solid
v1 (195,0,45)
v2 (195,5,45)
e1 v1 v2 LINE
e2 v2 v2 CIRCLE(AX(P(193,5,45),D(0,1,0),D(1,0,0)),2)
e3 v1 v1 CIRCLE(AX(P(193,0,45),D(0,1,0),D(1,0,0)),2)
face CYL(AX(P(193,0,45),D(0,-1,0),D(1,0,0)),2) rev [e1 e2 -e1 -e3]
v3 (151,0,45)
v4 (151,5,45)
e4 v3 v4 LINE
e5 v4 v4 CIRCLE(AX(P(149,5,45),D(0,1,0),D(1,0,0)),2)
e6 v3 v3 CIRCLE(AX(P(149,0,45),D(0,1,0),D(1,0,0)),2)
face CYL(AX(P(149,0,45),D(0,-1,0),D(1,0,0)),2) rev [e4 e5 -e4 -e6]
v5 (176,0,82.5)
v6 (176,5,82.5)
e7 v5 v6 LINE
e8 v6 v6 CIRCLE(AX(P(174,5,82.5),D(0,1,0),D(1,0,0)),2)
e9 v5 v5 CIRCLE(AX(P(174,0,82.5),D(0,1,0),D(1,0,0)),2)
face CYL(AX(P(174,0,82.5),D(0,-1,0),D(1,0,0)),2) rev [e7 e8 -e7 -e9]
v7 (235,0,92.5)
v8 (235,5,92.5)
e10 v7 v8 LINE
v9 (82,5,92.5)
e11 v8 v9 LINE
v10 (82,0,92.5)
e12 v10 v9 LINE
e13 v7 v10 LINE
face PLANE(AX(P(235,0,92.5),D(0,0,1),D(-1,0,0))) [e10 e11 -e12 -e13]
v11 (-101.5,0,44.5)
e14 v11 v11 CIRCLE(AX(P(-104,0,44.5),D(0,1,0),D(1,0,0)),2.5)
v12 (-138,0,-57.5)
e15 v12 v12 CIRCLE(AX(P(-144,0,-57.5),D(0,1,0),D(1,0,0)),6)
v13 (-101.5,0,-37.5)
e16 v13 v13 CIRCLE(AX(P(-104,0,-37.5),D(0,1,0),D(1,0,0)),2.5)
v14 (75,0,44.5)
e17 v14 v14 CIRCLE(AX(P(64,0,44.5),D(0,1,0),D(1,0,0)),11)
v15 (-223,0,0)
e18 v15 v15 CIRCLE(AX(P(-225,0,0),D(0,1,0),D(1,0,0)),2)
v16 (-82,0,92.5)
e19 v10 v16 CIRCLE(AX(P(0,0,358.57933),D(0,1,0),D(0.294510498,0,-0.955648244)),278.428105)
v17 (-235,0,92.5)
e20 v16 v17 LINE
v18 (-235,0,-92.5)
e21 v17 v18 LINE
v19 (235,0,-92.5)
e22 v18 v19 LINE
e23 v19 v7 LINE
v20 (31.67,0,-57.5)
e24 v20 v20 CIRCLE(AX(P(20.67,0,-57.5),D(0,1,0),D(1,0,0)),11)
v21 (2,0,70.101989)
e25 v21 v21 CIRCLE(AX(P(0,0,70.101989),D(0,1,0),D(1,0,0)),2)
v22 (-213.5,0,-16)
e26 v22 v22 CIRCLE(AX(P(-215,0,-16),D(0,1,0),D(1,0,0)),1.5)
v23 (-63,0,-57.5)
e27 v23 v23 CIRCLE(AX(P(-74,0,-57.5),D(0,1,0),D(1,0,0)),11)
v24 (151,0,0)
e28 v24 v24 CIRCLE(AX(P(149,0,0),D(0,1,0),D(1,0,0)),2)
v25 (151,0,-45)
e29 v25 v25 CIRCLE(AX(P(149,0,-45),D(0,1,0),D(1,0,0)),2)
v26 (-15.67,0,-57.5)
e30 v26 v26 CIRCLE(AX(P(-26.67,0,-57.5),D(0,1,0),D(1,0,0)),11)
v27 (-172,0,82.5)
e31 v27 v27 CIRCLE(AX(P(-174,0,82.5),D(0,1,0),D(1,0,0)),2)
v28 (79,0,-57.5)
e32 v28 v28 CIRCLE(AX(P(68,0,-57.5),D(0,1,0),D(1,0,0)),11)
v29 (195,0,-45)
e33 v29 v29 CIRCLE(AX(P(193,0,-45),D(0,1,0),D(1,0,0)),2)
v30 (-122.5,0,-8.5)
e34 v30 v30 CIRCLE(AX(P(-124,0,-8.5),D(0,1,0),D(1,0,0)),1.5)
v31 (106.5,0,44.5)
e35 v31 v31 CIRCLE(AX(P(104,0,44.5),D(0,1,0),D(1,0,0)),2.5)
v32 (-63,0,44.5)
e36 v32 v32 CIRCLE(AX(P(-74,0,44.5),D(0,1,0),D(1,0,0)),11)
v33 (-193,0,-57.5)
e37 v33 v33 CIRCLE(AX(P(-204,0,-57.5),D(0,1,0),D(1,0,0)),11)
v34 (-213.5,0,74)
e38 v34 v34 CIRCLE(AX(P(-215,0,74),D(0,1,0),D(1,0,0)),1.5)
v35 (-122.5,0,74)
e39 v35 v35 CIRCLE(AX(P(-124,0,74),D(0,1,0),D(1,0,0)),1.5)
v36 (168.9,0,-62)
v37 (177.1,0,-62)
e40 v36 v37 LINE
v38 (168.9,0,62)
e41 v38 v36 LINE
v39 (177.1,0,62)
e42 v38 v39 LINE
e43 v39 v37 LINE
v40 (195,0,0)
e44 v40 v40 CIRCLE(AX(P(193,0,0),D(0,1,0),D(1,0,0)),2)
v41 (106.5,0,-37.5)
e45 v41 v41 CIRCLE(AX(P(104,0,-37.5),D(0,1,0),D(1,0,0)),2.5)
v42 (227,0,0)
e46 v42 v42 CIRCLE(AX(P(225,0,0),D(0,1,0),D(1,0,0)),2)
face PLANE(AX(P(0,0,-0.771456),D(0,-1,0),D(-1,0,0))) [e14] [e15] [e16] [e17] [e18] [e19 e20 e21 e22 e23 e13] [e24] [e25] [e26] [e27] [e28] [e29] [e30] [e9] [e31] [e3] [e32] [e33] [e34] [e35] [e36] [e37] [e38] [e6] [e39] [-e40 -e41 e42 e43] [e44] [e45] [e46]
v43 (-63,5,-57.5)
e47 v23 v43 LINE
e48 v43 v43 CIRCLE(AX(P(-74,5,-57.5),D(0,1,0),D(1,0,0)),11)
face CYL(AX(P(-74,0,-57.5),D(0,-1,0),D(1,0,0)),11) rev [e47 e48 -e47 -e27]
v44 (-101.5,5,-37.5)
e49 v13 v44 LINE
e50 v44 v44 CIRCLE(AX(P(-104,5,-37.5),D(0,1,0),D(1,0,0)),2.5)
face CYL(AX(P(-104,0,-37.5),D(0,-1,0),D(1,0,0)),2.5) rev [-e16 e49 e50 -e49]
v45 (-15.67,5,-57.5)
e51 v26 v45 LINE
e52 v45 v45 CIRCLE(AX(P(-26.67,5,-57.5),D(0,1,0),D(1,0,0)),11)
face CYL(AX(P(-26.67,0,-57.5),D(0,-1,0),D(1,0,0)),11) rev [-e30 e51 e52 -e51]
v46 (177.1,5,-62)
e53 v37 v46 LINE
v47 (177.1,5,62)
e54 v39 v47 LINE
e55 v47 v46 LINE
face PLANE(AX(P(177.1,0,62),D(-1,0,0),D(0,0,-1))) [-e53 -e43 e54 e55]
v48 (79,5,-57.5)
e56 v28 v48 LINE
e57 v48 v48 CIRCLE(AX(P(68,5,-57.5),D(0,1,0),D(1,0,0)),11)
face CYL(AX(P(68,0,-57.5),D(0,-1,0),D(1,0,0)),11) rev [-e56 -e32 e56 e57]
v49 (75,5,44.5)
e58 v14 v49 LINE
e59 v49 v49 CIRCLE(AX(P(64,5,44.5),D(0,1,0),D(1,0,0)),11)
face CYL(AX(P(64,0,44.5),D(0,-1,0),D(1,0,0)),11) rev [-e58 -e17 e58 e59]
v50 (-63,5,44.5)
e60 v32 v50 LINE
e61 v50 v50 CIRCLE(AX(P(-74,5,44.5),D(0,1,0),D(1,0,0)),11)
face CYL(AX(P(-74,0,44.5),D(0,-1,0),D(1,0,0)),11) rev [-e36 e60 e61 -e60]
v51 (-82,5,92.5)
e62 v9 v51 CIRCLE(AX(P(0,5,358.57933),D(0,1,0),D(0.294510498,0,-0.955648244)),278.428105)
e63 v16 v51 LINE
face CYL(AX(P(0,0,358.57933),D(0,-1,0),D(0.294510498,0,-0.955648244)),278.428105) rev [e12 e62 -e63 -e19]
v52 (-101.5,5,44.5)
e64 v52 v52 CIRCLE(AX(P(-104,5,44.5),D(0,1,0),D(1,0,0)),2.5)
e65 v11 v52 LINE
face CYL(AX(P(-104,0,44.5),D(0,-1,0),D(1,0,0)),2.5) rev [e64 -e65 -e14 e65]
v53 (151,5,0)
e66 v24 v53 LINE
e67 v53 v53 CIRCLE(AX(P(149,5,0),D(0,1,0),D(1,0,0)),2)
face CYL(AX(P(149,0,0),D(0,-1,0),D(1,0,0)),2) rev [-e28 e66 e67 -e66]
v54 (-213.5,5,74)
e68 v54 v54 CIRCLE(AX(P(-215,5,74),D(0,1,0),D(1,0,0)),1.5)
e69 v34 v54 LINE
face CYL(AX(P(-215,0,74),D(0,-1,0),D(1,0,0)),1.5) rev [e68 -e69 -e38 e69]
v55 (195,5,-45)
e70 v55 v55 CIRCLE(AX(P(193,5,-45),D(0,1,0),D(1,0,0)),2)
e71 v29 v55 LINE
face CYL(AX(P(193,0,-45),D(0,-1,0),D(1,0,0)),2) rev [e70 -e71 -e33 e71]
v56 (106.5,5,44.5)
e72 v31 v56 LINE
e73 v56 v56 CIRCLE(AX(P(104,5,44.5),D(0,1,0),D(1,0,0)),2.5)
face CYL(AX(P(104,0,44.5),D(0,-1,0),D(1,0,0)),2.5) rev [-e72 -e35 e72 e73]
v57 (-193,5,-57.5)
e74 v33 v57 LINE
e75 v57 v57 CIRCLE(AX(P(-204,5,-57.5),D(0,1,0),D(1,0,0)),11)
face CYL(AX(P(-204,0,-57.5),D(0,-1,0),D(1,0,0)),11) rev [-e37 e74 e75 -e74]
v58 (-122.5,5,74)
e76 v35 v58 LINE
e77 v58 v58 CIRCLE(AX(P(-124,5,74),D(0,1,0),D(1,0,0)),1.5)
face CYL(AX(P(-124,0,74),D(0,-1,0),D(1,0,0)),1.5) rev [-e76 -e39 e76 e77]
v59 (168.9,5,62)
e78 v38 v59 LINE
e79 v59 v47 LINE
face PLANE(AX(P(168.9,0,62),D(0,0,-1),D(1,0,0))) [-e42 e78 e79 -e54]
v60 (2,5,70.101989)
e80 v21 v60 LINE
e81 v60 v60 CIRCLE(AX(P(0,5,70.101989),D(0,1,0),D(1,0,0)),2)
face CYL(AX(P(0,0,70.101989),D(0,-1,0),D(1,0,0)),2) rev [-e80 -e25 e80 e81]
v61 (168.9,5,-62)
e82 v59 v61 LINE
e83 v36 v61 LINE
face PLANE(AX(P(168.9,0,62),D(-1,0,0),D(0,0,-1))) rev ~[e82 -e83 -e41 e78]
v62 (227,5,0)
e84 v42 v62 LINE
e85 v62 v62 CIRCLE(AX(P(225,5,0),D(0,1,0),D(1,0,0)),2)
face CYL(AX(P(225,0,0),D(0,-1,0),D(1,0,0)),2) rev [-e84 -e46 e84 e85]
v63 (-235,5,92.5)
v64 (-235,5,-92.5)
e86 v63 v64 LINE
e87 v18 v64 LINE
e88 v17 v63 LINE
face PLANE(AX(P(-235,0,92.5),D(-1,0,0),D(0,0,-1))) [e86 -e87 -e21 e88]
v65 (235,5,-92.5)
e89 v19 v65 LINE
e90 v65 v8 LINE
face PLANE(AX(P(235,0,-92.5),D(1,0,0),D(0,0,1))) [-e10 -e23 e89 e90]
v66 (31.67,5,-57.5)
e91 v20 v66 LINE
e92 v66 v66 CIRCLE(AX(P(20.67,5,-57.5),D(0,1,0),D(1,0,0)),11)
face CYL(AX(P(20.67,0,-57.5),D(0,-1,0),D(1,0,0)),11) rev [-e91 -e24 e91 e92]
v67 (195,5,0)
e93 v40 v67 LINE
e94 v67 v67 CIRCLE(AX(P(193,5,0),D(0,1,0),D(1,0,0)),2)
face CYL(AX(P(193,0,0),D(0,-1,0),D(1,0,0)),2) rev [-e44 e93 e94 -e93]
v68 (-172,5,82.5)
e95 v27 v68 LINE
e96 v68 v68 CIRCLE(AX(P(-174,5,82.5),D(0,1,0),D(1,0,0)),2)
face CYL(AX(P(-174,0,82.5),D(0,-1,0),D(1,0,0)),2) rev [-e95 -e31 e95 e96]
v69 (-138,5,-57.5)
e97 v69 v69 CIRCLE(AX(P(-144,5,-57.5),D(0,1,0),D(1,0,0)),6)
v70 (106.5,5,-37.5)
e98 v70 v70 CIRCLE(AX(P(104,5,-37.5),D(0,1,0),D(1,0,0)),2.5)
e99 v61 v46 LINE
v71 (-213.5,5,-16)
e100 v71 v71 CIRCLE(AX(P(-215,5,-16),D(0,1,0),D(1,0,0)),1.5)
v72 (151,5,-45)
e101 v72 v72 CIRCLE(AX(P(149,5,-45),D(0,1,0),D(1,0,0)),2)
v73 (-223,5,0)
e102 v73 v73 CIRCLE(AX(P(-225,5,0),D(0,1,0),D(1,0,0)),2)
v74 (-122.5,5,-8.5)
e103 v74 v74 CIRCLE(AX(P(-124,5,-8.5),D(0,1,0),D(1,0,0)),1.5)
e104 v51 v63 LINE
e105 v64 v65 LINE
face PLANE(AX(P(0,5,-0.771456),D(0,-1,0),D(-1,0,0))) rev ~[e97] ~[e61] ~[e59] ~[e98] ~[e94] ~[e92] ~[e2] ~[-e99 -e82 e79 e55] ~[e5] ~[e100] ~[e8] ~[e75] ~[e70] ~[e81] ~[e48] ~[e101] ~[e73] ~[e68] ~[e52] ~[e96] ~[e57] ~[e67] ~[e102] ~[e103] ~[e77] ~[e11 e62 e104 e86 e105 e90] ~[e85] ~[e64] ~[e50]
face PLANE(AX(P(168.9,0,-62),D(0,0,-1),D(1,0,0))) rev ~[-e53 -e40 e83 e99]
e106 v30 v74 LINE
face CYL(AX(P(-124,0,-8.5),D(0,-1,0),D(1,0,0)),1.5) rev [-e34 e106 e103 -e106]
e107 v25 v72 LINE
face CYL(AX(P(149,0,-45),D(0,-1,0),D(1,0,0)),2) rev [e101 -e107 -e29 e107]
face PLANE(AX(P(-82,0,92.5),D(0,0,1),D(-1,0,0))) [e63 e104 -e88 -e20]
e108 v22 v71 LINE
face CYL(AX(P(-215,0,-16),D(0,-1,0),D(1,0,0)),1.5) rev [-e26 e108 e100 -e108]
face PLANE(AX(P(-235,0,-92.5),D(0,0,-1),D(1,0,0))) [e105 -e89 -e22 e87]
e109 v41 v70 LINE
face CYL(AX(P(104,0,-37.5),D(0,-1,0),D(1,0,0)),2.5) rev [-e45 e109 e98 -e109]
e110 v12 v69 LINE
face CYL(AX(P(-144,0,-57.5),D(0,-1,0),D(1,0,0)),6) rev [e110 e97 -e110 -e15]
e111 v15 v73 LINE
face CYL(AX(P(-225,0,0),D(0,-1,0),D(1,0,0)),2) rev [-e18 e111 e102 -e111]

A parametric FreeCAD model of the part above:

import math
import FreeCAD as App
import Part
import Sketcher
from FreeCAD import Vector

doc = App.newDocument("Part")
body = doc.addObject("PartDesign::Body", "Body")

# Sketch on XZ plane
sketch1 = body.newObject("Sketcher::SketchObject", "Sketch")
sketch1.AttachmentSupport = (doc.getObject("XZ_Plane"), [""])
sketch1.MapMode = "FlatFace"
sketch1.addGeometry([
    Part.LineSegment(Vector(235, -92.5, 0), Vector(-235, -92.5, 0)),  # 0
    Part.LineSegment(Vector(-235, -92.5, 0), Vector(-235, 92.5, 0)),  # 1
    Part.LineSegment(Vector(-235, 92.5, 0), Vector(-82, 92.5, 0)),  # 2
    Part.ArcOfCircle(Part.Circle(Vector(0, 358.6, 0), Vector(0, 0, 1), 278.4), math.radians(-107), math.radians(-73)),  # 3
    Part.LineSegment(Vector(82, 92.5, 0), Vector(235, 92.5, 0)),  # 4
    Part.LineSegment(Vector(235, 92.5, 0), Vector(235, -92.5, 0)),  # 5
    Part.Circle(Vector(174, 82.5, 0), Vector(0, 0, 1), 2),  # 6
    Part.Circle(Vector(193, 45, 0), Vector(0, 0, 1), 2),  # 7
    Part.Circle(Vector(149, 45, 0), Vector(0, 0, 1), 2),  # 8
    Part.Circle(Vector(104, 44.5, 0), Vector(0, 0, 1), 2.5),  # 9
    Part.Circle(Vector(64, 44.5, 0), Vector(0, 0, 1), 11),  # 10
    Part.Circle(Vector(0, 70.1, 0), Vector(0, 0, 1), 2),  # 11
    Part.Circle(Vector(-124, 74, 0), Vector(0, 0, 1), 1.5),  # 12
    Part.Circle(Vector(-174, 82.5, 0), Vector(0, 0, 1), 2),  # 13
    Part.Circle(Vector(-215, 74, 0), Vector(0, 0, 1), 1.5),  # 14
    Part.Circle(Vector(-74, 44.5, 0), Vector(0, 0, 1), 11),  # 15
    Part.Circle(Vector(-104, 44.5, 0), Vector(0, 0, 1), 2.5),  # 16
    Part.Circle(Vector(225, 0, 0), Vector(0, 0, 1), 2),  # 17
    Part.Circle(Vector(193, 0, 0), Vector(0, 0, 1), 2),  # 18
    Part.LineSegment(Vector(168.9, 62, 0), Vector(168.9, -62, 0)),  # 19
    Part.LineSegment(Vector(168.9, -62, 0), Vector(177.1, -62, 0)),  # 20
    Part.LineSegment(Vector(177.1, -62, 0), Vector(177.1, 62, 0)),  # 21
    Part.LineSegment(Vector(177.1, 62, 0), Vector(168.9, 62, 0)),  # 22
    Part.Circle(Vector(149, 0, 0), Vector(0, 0, 1), 2),  # 23
    Part.Circle(Vector(193, -45, 0), Vector(0, 0, 1), 2),  # 24
    Part.Circle(Vector(149, -45, 0), Vector(0, 0, 1), 2),  # 25
    Part.Circle(Vector(104, -37.5, 0), Vector(0, 0, 1), 2.5),  # 26
    Part.Circle(Vector(68, -57.5, 0), Vector(0, 0, 1), 11),  # 27
    Part.Circle(Vector(20.7, -57.5, 0), Vector(0, 0, 1), 11),  # 28
    Part.Circle(Vector(-124, -8.5, 0), Vector(0, 0, 1), 1.5),  # 29
    Part.Circle(Vector(-225, 0, 0), Vector(0, 0, 1), 2),  # 30
    Part.Circle(Vector(-215, -16, 0), Vector(0, 0, 1), 1.5),  # 31
    Part.Circle(Vector(-104, -37.5, 0), Vector(0, 0, 1), 2.5),  # 32
    Part.Circle(Vector(-26.7, -57.5, 0), Vector(0, 0, 1), 11),  # 33
    Part.Circle(Vector(-74, -57.5, 0), Vector(0, 0, 1), 11),  # 34
    Part.Circle(Vector(-144, -57.5, 0), Vector(0, 0, 1), 6),  # 35
    Part.Circle(Vector(-204, -57.5, 0), Vector(0, 0, 1), 11),  # 36
], False)
sketch1.addConstraint([
    Sketcher.Constraint("Coincident", 0, 2, 1, 1),
    Sketcher.Constraint("Coincident", 1, 2, 2, 1),
    Sketcher.Constraint("Coincident", 2, 2, 3, 1),
    Sketcher.Constraint("Coincident", 3, 2, 4, 1),
    Sketcher.Constraint("Coincident", 4, 2, 5, 1),
    Sketcher.Constraint("Coincident", 5, 2, 0, 1),
    Sketcher.Constraint("Coincident", 19, 2, 20, 1),
    Sketcher.Constraint("Coincident", 20, 2, 21, 1),
    Sketcher.Constraint("Coincident", 21, 2, 22, 1),
    Sketcher.Constraint("Coincident", 22, 2, 19, 1),
    Sketcher.Constraint("Horizontal", 0),
    Sketcher.Constraint("Vertical", 1),
    Sketcher.Constraint("Horizontal", 2),
    Sketcher.Constraint("Horizontal", 4),
    Sketcher.Constraint("Vertical", 5),
    Sketcher.Constraint("Vertical", 19),
    Sketcher.Constraint("Horizontal", 20),
    Sketcher.Constraint("Vertical", 21),
    Sketcher.Constraint("Horizontal", 22),
    Sketcher.Constraint("Equal", 6, 7),
    Sketcher.Constraint("Equal", 7, 8),
    Sketcher.Constraint("Equal", 8, 11),
    Sketcher.Constraint("Equal", 11, 13),
    Sketcher.Constraint("Equal", 12, 14),
    Sketcher.Constraint("Equal", 10, 15),
    Sketcher.Constraint("Equal", 9, 16),
    Sketcher.Constraint("Equal", 13, 17),
    Sketcher.Constraint("Equal", 17, 18),
    Sketcher.Constraint("Equal", 18, 23),
    Sketcher.Constraint("Equal", 23, 24),
    Sketcher.Constraint("Equal", 24, 25),
    Sketcher.Constraint("Equal", 16, 26),
    Sketcher.Constraint("Equal", 15, 27),
    Sketcher.Constraint("Equal", 27, 28),
    Sketcher.Constraint("Equal", 14, 29),
    Sketcher.Constraint("Equal", 25, 30),
    Sketcher.Constraint("Equal", 29, 31),
    Sketcher.Constraint("Equal", 26, 32),
    Sketcher.Constraint("Equal", 28, 33),
    Sketcher.Constraint("Equal", 33, 34),
    Sketcher.Constraint("Equal", 34, 36),
    Sketcher.Constraint("Symmetric", 17, 3, 30, 3, -1, 1),
    Sketcher.Constraint("Symmetric", 0, 2, 4, 2, -1, 1),
    Sketcher.Constraint("Symmetric", 6, 3, 13, 3, -2),
    Sketcher.Constraint("Symmetric", 9, 3, 16, 3, -2),
    Sketcher.Constraint("Symmetric", 26, 3, 32, 3, -2),
    Sketcher.Constraint("Symmetric", 2, 2, 3, 2, -2),
    Sketcher.Constraint("Symmetric", 7, 3, 24, 3, -1),
    Sketcher.Constraint("Symmetric", 8, 3, 25, 3, -1),
    Sketcher.Constraint("PointOnObject", 11, 3, -2),
    Sketcher.Constraint("PointOnObject", 17, 3, -1),
    Sketcher.Constraint("PointOnObject", 18, 3, -1),
    Sketcher.Constraint("PointOnObject", 23, 3, -1),
    Sketcher.Constraint("Horizontal", 7, 3, 8, 3),
    Sketcher.Constraint("Horizontal", 9, 3, 10, 3),
    Sketcher.Constraint("Horizontal", 12, 3, 14, 3),
    Sketcher.Constraint("Horizontal", 10, 3, 15, 3),
    Sketcher.Constraint("Horizontal", 27, 3, 28, 3),
    Sketcher.Constraint("Horizontal", 28, 3, 33, 3),
    Sketcher.Constraint("Horizontal", 33, 3, 34, 3),
    Sketcher.Constraint("Horizontal", 34, 3, 35, 3),
    Sketcher.Constraint("Horizontal", 35, 3, 36, 3),
    Sketcher.Constraint("Vertical", 7, 3, 18, 3),
    Sketcher.Constraint("Vertical", 8, 3, 23, 3),
    Sketcher.Constraint("Vertical", 9, 3, 26, 3),
    Sketcher.Constraint("Vertical", 12, 3, 29, 3),
    Sketcher.Constraint("Vertical", 14, 3, 31, 3),
    Sketcher.Constraint("Vertical", 15, 3, 34, 3),
    Sketcher.Constraint("Diameter", 6, 4.0),
    Sketcher.Constraint("Diameter", 9, 5.0),
    Sketcher.Constraint("Diameter", 10, 22.0),
    Sketcher.Constraint("Diameter", 12, 3.0),
    Sketcher.Constraint("Diameter", 35, 12.0),
    Sketcher.Constraint("DistanceX", 0, 2, 0, 1, 470.0),
    Sketcher.Constraint("DistanceX", 2, 1, 2, 2, 153.0),
    Sketcher.Constraint("DistanceY", 1, 1, 1, 2, 185.0),
    Sketcher.Constraint("DistanceY", 19, 2, 19, 1, 124.0),
    Sketcher.Constraint("DistanceX", 20, 1, 20, 2, 8.2),
    Sketcher.Constraint("DistanceX", -1, 1, 6, 3, 174.0),
    Sketcher.Constraint("DistanceX", -1, 1, 7, 3, 193.0),
    Sketcher.Constraint("DistanceY", -1, 1, 7, 3, 45.0),
    Sketcher.Constraint("DistanceX", -1, 1, 8, 3, 149.0),
    Sketcher.Constraint("DistanceX", -1, 1, 9, 3, 104.0),
    Sketcher.Constraint("DistanceX", -1, 1, 10, 3, 64.0),
    Sketcher.Constraint("DistanceX", 12, 3, -1, 1, 124.0),
    Sketcher.Constraint("DistanceY", -1, 1, 12, 3, 74.0),
    Sketcher.Constraint("DistanceX", 14, 3, -1, 1, 215.0),
    Sketcher.Constraint("DistanceX", 15, 3, -1, 1, 74.0),
    Sketcher.Constraint("DistanceX", -1, 1, 17, 3, 225.0),
    Sketcher.Constraint("DistanceX", -1, 1, 27, 3, 68.0),
    Sketcher.Constraint("DistanceY", 31, 3, -1, 1, 16.0),
    Sketcher.Constraint("DistanceX", 35, 3, -1, 1, 144.0),
    Sketcher.Constraint("DistanceX", 36, 3, -1, 1, 204.0),
    Sketcher.Constraint("DistanceY", 19, 2, -1, 1, 62.0),
    Sketcher.Constraint("DistanceY", 9, 3, 6, 3, 38.0),
    Sketcher.Constraint("DistanceY", 26, 3, 9, 3, 82.0),
    Sketcher.Constraint("DistanceY", 27, 3, 26, 3, 20.0),
    Sketcher.Constraint("DistanceY", 29, 3, 16, 3, 53.0),
    Sketcher.Constraint("DistanceY", 0, 2, 36, 3, 35.0),
    Sketcher.Constraint("DistanceX", -1, 1, 19, 2, 168.9),
    Sketcher.Constraint("DistanceX", -1, 1, 28, 3, 20.67),
    Sketcher.Constraint("DistanceX", 33, 3, -1, 1, 26.67),
    Sketcher.Constraint("Radius", 3, 278.428105),
    Sketcher.Constraint("DistanceY", -1, 1, 11, 3, 70.101989),
])
pad1 = body.newObject("PartDesign::Pad", "Pad")
pad1.Profile = sketch1
pad1.Length = 5
pad1.Reversed = True

doc.recompute()
